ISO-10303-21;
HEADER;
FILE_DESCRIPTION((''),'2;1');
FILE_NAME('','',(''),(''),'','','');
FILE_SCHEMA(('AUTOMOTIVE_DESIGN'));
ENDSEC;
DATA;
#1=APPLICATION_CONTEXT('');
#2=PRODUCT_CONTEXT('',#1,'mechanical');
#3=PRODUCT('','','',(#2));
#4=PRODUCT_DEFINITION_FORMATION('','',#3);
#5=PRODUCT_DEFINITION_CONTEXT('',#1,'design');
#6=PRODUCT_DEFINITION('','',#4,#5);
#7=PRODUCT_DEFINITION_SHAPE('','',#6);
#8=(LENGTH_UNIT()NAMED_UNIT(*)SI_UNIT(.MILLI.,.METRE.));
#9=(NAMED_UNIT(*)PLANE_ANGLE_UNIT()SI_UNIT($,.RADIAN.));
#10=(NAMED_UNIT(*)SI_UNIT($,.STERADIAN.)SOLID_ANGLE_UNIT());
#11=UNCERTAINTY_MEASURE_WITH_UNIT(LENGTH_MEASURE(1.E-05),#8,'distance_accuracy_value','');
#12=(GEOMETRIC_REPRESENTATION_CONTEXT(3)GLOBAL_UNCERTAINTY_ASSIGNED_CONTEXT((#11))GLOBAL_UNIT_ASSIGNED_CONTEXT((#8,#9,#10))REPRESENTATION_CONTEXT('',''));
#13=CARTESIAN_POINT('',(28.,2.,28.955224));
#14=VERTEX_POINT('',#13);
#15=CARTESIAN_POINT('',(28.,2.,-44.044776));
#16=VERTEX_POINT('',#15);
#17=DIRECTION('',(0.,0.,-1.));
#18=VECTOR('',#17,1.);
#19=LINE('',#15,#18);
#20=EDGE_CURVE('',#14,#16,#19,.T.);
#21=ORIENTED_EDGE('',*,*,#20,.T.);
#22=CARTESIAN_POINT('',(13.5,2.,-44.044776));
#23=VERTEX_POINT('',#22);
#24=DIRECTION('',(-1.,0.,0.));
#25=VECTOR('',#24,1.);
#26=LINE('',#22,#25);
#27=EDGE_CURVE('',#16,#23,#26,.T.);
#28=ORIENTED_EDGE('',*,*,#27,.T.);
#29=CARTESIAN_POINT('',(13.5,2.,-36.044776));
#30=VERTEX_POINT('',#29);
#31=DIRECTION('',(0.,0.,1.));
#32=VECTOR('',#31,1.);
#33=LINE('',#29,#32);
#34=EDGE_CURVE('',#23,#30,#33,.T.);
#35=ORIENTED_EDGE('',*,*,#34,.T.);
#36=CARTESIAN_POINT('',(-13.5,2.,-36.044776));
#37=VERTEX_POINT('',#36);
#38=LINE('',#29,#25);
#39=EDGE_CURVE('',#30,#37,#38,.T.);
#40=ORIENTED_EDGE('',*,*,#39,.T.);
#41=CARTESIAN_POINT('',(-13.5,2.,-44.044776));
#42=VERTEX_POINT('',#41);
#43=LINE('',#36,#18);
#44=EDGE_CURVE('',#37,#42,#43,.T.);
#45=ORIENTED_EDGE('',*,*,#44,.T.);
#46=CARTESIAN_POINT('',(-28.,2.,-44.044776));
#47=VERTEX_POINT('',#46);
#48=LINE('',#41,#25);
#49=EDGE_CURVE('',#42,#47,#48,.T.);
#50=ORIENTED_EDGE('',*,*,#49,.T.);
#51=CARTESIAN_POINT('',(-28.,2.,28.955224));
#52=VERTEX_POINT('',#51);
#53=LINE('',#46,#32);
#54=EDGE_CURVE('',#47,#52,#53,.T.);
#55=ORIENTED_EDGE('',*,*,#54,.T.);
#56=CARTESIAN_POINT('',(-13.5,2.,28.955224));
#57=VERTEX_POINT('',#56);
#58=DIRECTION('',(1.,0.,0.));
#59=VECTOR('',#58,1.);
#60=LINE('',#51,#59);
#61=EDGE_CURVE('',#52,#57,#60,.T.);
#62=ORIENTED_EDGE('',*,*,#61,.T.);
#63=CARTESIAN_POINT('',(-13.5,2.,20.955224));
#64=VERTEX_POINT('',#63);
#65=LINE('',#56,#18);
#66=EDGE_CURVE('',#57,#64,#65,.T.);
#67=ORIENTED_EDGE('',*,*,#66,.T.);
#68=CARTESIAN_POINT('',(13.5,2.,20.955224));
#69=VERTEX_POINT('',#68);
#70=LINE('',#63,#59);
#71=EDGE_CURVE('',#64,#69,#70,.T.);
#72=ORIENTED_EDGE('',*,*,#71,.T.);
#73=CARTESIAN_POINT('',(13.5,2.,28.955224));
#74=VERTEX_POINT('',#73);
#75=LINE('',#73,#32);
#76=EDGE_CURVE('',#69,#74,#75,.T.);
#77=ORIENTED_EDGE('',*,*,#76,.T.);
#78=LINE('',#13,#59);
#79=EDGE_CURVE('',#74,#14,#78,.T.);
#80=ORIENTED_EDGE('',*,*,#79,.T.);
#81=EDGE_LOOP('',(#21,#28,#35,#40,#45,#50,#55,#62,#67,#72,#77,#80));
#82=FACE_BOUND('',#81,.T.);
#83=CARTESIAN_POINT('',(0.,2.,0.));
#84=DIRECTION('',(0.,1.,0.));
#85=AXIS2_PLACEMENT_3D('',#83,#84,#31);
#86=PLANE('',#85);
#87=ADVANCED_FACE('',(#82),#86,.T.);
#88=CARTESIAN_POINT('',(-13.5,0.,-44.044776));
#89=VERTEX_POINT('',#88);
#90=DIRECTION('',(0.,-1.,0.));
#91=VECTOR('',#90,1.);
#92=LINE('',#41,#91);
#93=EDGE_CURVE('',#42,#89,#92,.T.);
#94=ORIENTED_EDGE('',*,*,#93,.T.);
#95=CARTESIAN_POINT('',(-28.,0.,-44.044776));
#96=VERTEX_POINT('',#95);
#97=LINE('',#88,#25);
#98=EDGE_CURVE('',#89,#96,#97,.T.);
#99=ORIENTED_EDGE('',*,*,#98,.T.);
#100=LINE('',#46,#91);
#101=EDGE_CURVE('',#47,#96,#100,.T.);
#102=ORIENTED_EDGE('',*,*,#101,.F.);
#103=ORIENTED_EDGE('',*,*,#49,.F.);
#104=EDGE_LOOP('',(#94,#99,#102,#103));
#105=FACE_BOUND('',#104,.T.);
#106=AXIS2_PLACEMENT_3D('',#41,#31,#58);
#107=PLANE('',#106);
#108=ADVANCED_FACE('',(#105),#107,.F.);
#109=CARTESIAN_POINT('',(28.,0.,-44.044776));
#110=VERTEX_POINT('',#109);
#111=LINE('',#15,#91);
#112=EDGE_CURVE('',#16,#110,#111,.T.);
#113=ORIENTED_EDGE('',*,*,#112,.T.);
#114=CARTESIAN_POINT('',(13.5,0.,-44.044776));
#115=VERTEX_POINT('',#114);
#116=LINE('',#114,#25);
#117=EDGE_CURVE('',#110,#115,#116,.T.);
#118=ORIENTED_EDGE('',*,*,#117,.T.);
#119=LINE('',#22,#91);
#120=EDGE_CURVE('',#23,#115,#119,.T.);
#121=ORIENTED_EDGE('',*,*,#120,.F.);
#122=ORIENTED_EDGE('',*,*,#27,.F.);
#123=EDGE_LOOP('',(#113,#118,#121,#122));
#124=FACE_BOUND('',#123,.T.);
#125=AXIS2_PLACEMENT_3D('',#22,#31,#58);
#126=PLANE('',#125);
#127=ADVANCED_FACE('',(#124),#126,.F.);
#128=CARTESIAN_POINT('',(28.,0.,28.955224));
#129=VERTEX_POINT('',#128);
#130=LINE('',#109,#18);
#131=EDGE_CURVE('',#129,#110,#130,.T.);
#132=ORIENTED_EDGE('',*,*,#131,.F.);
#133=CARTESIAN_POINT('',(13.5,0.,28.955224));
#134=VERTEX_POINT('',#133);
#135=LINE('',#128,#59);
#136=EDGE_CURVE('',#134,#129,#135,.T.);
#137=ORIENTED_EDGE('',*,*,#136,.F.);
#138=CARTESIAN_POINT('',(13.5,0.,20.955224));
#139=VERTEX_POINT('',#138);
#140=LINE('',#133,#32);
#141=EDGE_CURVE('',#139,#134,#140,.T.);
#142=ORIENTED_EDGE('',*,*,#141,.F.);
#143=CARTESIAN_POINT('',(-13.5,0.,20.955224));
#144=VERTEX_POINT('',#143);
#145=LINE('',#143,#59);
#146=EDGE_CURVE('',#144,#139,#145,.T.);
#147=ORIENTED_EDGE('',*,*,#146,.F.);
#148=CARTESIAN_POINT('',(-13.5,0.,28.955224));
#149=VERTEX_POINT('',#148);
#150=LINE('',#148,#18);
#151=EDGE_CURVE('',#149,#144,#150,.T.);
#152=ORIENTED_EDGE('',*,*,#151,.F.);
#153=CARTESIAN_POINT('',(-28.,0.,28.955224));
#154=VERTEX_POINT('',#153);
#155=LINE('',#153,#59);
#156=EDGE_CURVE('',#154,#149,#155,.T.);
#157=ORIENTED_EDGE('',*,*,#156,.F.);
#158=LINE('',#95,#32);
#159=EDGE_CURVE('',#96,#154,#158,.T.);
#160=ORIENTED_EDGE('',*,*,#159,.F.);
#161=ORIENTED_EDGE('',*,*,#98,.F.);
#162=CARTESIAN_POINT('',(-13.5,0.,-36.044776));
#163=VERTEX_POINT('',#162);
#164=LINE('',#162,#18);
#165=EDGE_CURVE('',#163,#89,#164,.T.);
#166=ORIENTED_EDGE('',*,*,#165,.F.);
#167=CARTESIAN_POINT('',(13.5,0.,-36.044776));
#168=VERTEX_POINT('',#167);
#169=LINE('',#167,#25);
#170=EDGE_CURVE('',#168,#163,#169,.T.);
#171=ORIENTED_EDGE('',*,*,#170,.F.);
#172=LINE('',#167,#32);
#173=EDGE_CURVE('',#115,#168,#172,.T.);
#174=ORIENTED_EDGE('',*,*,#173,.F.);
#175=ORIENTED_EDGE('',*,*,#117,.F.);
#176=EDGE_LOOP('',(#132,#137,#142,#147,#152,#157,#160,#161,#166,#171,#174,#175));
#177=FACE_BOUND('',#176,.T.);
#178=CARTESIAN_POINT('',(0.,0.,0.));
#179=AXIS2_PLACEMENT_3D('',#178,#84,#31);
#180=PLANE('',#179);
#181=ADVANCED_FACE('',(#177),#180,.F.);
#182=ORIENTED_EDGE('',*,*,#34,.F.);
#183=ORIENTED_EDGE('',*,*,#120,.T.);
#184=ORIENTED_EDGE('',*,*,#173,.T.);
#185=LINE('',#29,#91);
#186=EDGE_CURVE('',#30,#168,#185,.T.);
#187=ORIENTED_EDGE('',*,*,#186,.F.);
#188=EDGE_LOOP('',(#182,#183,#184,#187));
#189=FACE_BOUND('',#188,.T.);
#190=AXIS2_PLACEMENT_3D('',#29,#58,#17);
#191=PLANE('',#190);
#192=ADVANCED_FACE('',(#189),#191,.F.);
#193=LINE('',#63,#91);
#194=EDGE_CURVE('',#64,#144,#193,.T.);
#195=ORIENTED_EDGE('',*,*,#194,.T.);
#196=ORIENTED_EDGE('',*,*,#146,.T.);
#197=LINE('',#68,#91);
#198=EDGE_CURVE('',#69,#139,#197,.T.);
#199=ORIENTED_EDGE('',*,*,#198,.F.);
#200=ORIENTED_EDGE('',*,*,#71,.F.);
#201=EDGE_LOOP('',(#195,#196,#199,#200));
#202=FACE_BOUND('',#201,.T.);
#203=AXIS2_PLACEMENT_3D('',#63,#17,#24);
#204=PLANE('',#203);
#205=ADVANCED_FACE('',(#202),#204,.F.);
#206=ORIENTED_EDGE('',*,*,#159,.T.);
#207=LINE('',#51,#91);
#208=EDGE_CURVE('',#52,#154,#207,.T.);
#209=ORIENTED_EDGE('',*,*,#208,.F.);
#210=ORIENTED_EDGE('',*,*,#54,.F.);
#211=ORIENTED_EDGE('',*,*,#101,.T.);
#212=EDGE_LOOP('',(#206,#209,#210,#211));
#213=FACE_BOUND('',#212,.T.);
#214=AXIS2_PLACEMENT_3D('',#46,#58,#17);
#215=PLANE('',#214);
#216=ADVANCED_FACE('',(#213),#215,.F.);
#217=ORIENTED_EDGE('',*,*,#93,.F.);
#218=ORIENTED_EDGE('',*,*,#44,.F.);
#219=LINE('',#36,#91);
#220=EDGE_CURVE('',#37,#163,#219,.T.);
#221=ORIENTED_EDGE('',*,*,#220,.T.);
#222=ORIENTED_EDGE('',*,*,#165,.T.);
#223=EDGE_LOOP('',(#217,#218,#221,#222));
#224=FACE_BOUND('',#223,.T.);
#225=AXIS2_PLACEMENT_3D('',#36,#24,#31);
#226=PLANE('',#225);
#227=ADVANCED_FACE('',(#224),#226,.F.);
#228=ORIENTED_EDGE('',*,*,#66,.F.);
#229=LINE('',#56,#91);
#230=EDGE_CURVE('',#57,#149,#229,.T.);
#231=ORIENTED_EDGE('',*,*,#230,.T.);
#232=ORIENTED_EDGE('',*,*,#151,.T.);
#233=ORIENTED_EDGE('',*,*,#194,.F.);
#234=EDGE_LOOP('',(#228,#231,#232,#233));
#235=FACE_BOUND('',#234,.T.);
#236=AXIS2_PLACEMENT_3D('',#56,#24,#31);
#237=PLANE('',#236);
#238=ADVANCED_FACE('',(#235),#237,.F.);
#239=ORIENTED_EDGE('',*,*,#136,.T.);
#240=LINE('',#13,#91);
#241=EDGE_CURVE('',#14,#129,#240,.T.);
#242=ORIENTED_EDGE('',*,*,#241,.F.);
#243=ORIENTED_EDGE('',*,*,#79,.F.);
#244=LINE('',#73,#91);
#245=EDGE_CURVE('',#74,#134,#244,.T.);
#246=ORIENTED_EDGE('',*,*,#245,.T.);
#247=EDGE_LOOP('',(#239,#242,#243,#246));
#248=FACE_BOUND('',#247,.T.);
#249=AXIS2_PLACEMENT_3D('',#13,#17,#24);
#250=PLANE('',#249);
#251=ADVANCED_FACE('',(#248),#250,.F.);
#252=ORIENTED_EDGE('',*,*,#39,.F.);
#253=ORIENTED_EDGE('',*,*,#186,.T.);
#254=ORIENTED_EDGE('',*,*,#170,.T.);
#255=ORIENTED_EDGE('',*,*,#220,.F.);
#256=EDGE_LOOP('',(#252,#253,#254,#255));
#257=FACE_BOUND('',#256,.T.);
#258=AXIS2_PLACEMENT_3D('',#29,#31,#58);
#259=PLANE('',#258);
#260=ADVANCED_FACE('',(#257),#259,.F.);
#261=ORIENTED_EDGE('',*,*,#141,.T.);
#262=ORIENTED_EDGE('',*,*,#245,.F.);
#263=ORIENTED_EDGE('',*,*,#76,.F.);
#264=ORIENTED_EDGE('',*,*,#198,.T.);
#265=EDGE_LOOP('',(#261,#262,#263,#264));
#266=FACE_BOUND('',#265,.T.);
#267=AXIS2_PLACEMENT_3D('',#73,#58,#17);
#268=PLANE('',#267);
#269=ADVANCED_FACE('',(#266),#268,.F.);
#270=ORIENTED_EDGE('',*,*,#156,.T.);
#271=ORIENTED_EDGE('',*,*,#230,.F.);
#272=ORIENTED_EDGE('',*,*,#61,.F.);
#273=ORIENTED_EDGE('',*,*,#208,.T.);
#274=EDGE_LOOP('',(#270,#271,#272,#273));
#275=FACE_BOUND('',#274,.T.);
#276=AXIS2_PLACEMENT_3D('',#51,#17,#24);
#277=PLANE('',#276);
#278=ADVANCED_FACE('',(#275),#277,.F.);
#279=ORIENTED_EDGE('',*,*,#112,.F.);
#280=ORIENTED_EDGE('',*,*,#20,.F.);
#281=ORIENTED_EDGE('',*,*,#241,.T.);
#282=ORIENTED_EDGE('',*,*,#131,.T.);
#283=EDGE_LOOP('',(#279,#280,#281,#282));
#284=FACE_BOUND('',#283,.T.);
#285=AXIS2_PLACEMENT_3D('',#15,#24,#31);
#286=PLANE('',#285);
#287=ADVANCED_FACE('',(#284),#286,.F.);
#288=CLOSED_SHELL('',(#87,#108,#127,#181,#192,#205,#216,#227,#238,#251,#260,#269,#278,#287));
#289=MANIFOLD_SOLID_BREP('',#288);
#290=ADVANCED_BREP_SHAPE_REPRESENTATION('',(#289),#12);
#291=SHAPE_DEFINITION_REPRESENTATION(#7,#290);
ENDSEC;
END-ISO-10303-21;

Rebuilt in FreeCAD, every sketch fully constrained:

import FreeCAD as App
import Part
import Sketcher
Q = App.Units.Quantity

doc = App.newDocument("Part")
body = doc.addObject("PartDesign::Body", "Body")

# Sketch on XZ plane
sketch1 = doc.addObject("Sketcher::SketchObject", "Sketch")
body.addObject(sketch1)
sketch1.AttachmentSupport = (doc.XZ_Plane, [""])
sketch1.MapMode = "FlatFace"
sketch1.addGeometry(Part.LineSegment(App.Vector(14, -36, 0), App.Vector(-14, -36, 0)), False)
sketch1.addGeometry(Part.LineSegment(App.Vector(-14, -36, 0), App.Vector(-14, -44, 0)), False)
sketch1.addGeometry(Part.LineSegment(App.Vector(-14, -44, 0), App.Vector(-28, -44, 0)), False)
sketch1.addGeometry(Part.LineSegment(App.Vector(-28, -44, 0), App.Vector(-28, 29, 0)), False)
sketch1.addGeometry(Part.LineSegment(App.Vector(-28, 29, 0), App.Vector(-14, 29, 0)), False)
sketch1.addGeometry(Part.LineSegment(App.Vector(-14, 29, 0), App.Vector(-14, 21, 0)), False)
sketch1.addGeometry(Part.LineSegment(App.Vector(-14, 21, 0), App.Vector(14, 21, 0)), False)
sketch1.addGeometry(Part.LineSegment(App.Vector(14, 21, 0), App.Vector(14, 29, 0)), False)
sketch1.addGeometry(Part.LineSegment(App.Vector(14, 29, 0), App.Vector(28, 29, 0)), False)
sketch1.addGeometry(Part.LineSegment(App.Vector(28, 29, 0), App.Vector(28, -44, 0)), False)
sketch1.addGeometry(Part.LineSegment(App.Vector(28, -44, 0), App.Vector(14, -44, 0)), False)
sketch1.addGeometry(Part.LineSegment(App.Vector(14, -44, 0), App.Vector(14, -36, 0)), False)
sketch1.addConstraint(Sketcher.Constraint("Coincident", 0, 2, 1, 1))
sketch1.addConstraint(Sketcher.Constraint("Coincident", 1, 2, 2, 1))
sketch1.addConstraint(Sketcher.Constraint("Coincident", 2, 2, 3, 1))
sketch1.addConstraint(Sketcher.Constraint("Coincident", 3, 2, 4, 1))
sketch1.addConstraint(Sketcher.Constraint("Coincident", 4, 2, 5, 1))
sketch1.addConstraint(Sketcher.Constraint("Coincident", 5, 2, 6, 1))
sketch1.addConstraint(Sketcher.Constraint("Coincident", 6, 2, 7, 1))
sketch1.addConstraint(Sketcher.Constraint("Coincident", 7, 2, 8, 1))
sketch1.addConstraint(Sketcher.Constraint("Coincident", 8, 2, 9, 1))
sketch1.addConstraint(Sketcher.Constraint("Coincident", 9, 2, 10, 1))
sketch1.addConstraint(Sketcher.Constraint("Coincident", 10, 2, 11, 1))
sketch1.addConstraint(Sketcher.Constraint("Coincident", 11, 2, 0, 1))
sketch1.addConstraint(Sketcher.Constraint("Horizontal", 0))
sketch1.addConstraint(Sketcher.Constraint("Vertical", 1))
sketch1.addConstraint(Sketcher.Constraint("Horizontal", 2))
sketch1.addConstraint(Sketcher.Constraint("Vertical", 3))
sketch1.addConstraint(Sketcher.Constraint("Horizontal", 4))
sketch1.addConstraint(Sketcher.Constraint("Vertical", 5))
sketch1.addConstraint(Sketcher.Constraint("Horizontal", 6))
sketch1.addConstraint(Sketcher.Constraint("Vertical", 7))
sketch1.addConstraint(Sketcher.Constraint("Horizontal", 8))
sketch1.addConstraint(Sketcher.Constraint("Vertical", 9))
sketch1.addConstraint(Sketcher.Constraint("Horizontal", 10))
sketch1.addConstraint(Sketcher.Constraint("Vertical", 11))
sketch1.addConstraint(Sketcher.Constraint("Symmetric", 4, 2, 7, 2, -2))
sketch1.addConstraint(Sketcher.Constraint("Symmetric", 2, 2, 9, 2, -2))
sketch1.addConstraint(Sketcher.Constraint("Vertical", 1, 2, 4, 2))
sketch1.addConstraint(Sketcher.Constraint("Vertical", 7, 2, 10, 2))
sketch1.addConstraint(Sketcher.Constraint("Equal", 1, 5))
sketch1.addConstraint(Sketcher.Constraint("DistanceX", 0, 2, 0, 1, Q("27 mm")))
sketch1.addConstraint(Sketcher.Constraint("DistanceY", 1, 2, 1, 1, Q("8 mm")))
sketch1.addConstraint(Sketcher.Constraint("DistanceY", 3, 1, 3, 2, Q("73 mm")))
sketch1.addConstraint(Sketcher.Constraint("DistanceX", 2, 2, 2, 1, Q("14.5 mm")))
sketch1.addConstraint(Sketcher.Constraint("DistanceY", 0, 2, -1, 1, Q("36.044776 mm")))
pad1 = doc.addObject("PartDesign::Pad", "Pad")
body.addObject(pad1)
pad1.Profile = sketch1
pad1.Length = 2
pad1.Reversed = True

doc.recompute()
